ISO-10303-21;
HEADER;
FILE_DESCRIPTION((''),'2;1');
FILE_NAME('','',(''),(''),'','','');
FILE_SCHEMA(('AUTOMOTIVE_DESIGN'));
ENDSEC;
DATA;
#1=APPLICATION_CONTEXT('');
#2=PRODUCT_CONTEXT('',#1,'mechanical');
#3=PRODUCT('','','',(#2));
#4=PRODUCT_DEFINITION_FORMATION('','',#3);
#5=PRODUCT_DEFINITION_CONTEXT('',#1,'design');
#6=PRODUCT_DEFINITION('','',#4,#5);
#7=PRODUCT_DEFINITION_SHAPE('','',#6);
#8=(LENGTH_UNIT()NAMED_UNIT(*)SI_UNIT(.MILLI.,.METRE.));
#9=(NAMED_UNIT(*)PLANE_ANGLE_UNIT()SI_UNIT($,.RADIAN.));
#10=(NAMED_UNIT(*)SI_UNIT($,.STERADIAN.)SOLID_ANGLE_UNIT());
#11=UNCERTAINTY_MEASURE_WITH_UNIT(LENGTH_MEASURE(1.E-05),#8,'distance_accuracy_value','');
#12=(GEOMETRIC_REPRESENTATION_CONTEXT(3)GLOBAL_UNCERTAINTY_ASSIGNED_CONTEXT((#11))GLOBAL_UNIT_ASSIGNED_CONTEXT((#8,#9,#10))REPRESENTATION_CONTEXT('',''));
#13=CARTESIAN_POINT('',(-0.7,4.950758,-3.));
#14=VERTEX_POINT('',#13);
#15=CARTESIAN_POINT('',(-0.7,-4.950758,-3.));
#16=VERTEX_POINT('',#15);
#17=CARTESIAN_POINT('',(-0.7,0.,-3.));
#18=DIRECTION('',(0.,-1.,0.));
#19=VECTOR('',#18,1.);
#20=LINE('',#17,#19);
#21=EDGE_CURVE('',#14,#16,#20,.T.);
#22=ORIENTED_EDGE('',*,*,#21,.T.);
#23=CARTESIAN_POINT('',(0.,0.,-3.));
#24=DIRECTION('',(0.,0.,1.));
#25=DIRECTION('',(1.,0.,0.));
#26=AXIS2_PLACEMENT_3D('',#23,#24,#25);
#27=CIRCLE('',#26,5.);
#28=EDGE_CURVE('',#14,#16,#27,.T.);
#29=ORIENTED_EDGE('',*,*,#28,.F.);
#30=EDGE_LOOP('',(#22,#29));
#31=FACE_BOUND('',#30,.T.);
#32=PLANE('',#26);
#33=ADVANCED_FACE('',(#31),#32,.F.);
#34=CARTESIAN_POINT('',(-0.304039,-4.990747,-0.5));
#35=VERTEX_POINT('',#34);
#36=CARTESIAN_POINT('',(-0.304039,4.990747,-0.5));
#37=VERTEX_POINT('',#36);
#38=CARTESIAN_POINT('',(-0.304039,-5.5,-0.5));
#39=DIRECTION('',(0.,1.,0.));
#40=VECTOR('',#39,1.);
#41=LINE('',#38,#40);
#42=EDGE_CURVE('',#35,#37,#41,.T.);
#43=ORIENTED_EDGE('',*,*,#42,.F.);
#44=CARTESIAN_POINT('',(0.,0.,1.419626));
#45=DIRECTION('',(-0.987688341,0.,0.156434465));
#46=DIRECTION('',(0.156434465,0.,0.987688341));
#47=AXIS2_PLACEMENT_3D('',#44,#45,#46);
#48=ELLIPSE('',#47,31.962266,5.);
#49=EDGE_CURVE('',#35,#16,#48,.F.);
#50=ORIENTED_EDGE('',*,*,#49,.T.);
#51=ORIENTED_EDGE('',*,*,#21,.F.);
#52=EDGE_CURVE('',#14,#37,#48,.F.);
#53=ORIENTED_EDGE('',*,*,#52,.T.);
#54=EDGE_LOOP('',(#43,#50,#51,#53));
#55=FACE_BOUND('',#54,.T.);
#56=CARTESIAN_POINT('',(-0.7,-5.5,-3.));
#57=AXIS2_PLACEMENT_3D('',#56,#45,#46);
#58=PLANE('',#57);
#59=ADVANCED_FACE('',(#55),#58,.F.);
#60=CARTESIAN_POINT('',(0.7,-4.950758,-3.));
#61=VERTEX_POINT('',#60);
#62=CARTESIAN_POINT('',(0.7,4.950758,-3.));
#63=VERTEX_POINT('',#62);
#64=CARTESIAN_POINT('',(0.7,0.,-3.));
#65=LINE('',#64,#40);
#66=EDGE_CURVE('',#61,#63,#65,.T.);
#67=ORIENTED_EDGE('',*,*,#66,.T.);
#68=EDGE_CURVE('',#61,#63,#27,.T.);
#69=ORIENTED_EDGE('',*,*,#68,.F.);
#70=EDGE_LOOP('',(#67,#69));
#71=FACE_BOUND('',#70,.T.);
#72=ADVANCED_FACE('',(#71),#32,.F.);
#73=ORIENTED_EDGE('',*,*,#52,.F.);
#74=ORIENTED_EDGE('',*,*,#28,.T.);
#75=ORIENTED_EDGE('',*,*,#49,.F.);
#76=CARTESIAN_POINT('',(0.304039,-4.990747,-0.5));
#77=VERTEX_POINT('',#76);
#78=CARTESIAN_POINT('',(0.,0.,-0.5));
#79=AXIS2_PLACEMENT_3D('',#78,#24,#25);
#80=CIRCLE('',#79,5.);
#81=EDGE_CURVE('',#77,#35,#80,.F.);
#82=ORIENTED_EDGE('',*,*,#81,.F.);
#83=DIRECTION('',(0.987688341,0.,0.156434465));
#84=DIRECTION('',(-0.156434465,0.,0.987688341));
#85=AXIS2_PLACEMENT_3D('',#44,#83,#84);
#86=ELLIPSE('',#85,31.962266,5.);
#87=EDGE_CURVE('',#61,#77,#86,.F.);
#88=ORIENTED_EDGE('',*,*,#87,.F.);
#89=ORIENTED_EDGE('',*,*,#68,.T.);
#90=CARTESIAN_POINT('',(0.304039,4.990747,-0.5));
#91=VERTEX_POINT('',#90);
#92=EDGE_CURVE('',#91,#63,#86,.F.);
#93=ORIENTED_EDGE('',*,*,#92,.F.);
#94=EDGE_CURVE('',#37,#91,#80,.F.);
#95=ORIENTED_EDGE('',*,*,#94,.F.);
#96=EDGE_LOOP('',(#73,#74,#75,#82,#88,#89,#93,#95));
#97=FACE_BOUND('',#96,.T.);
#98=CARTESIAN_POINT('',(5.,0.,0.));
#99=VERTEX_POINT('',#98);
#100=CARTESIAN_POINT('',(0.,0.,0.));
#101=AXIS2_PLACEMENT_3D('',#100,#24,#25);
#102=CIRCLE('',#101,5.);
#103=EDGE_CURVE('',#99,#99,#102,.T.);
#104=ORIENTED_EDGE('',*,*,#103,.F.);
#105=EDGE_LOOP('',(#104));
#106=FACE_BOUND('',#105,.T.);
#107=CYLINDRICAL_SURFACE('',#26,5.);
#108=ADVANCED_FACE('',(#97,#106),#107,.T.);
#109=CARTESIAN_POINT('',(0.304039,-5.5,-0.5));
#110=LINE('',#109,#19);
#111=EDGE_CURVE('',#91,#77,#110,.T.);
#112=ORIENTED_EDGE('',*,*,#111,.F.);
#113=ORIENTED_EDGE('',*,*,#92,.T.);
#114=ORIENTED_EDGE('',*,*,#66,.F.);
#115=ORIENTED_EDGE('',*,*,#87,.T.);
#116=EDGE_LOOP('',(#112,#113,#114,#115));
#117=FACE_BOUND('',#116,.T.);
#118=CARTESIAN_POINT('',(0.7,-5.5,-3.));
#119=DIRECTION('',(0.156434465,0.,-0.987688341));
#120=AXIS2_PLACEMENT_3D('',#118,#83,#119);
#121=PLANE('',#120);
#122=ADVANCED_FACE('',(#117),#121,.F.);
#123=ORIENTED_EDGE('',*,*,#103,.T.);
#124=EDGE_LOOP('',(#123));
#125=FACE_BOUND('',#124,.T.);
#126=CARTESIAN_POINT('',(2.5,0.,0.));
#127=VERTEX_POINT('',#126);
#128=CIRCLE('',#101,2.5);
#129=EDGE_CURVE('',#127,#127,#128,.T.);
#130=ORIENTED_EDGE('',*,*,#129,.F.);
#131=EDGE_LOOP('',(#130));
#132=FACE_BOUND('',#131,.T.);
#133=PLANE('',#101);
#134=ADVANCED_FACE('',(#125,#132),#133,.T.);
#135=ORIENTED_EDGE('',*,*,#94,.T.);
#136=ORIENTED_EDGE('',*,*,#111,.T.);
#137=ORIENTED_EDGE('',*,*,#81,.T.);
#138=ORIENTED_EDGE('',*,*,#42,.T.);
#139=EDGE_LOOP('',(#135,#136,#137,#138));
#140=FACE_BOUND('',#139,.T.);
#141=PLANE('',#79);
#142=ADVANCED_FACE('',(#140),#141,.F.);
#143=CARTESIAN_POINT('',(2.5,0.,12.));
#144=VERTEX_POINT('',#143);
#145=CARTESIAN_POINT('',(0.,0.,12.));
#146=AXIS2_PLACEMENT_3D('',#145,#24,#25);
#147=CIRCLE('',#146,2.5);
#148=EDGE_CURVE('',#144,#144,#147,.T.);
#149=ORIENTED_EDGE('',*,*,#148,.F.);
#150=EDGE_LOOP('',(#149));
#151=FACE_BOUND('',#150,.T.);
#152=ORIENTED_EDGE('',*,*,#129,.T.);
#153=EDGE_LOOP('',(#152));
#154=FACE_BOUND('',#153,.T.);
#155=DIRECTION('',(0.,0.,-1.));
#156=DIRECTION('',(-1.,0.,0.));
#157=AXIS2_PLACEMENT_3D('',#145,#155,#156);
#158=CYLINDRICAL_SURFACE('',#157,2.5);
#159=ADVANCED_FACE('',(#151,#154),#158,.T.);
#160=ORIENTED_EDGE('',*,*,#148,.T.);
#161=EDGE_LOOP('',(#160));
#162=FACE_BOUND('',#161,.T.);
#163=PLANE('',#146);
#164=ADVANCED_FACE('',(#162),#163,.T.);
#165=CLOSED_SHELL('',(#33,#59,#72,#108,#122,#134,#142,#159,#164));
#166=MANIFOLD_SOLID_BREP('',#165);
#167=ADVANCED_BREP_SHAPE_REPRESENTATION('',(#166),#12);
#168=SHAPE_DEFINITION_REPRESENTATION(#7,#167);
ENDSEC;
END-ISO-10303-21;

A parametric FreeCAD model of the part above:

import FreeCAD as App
import Part
import Sketcher
from FreeCAD import Vector
Q = App.Units.Quantity

doc = App.newDocument("Part")
body = doc.addObject("PartDesign::Body", "Body")

# Sketch on XY plane
sketch1 = body.newObject("Sketcher::SketchObject", "Sketch")
sketch1.AttachmentSupport = (doc.getObject("XY_Plane"), [""])
sketch1.MapMode = "FlatFace"
sketch1.addGeometry(Part.Circle(Vector(0, 0, 0), Vector(0, 0, 1), 2.5), False)
sketch1.addConstraint([
    Sketcher.Constraint("Coincident", 0, 3, -1, 1),
    Sketcher.Constraint("Diameter", 0, Q("5 mm")),
])
pad1 = body.newObject("PartDesign::Pad", "Pad")
pad1.Profile = sketch1
pad1.Length = 12

# Sketch on XY plane
sketch2 = body.newObject("Sketcher::SketchObject", "Sketch001")
sketch2.AttachmentSupport = (doc.getObject("XY_Plane"), [""])
sketch2.MapMode = "FlatFace"
sketch2.addGeometry(Part.Circle(Vector(0, 0, 0), Vector(0, 0, 1), 5), False)
sketch2.addConstraint([
    Sketcher.Constraint("Coincident", 0, 3, -1, 1),
    Sketcher.Constraint("Diameter", 0, Q("10 mm")),
])
pad2 = body.newObject("PartDesign::Pad", "Pad001")
pad2.Profile = sketch2
pad2.Length = 3
pad2.Reversed = True

# Sketch on XY plane
sketch3 = body.newObject("Sketcher::SketchObject", "Sketch002")
sketch3.AttachmentSupport = (doc.getObject("XY_Plane"), [""])
sketch3.MapMode = "FlatFace"
sketch3.AttachmentOffset = App.Placement(Vector(0, 0, -3), App.Rotation())
sketch3.addGeometry([
    Part.LineSegment(Vector(0.7, 5.5, 0), Vector(0.7, -5.5, 0)),
    Part.LineSegment(Vector(0.7, -5.5, 0), Vector(-0.7, -5.5, 0)),
    Part.LineSegment(Vector(-0.7, -5.5, 0), Vector(-0.7, 5.5, 0)),
    Part.LineSegment(Vector(-0.7, 5.5, 0), Vector(0.7, 5.5, 0)),
], False)
sketch3.addConstraint([
    Sketcher.Constraint("Coincident", 0, 2, 1, 1),
    Sketcher.Constraint("Coincident", 1, 2, 2, 1),
    Sketcher.Constraint("Coincident", 2, 2, 3, 1),
    Sketcher.Constraint("Coincident", 3, 2, 0, 1),
    Sketcher.Constraint("Vertical", 0),
    Sketcher.Constraint("Horizontal", 1),
    Sketcher.Constraint("Vertical", 2),
    Sketcher.Constraint("Horizontal", 3),
    Sketcher.Constraint("Symmetric", 0, 2, 2, 2, -1, 1),
    Sketcher.Constraint("DistanceY", 0, 2, 0, 1, Q("11 mm")),
    Sketcher.Constraint("DistanceX", 1, 2, 1, 1, Q("1.4 mm")),
])
pocket1 = body.newObject("PartDesign::Pocket", "Pocket")
pocket1.Profile = sketch3
pocket1.Length = 2.5
pocket1.Reversed = True
pocket1.TaperAngle = -9

doc.recompute()
